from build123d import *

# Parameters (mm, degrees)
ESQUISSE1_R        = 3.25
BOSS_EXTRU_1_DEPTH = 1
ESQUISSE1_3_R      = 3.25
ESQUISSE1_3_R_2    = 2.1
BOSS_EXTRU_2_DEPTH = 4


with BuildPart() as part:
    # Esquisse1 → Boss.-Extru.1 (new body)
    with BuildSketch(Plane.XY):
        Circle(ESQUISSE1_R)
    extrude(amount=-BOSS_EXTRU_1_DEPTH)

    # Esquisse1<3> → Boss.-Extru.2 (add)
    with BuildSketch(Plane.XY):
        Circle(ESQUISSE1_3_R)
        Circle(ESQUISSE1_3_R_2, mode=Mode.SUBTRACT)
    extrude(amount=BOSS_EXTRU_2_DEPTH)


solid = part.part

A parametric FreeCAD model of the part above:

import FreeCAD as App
import Part
import Sketcher
Q = App.Units.Quantity

doc = App.newDocument("Part")
body = doc.addObject("PartDesign::Body", "Body")

sketch1 = doc.addObject("Sketcher::SketchObject", "Sketch")
body.addObject(sketch1)
sketch1.AttachmentSupport = (doc.XY_Plane, [""])
sketch1.MapMode = "FlatFace"
sketch1.addGeometry(Part.Circle(App.Vector(0, 0, 0), App.Vector(0, 0, 1), 3.2), False)
sketch1.addConstraint(Sketcher.Constraint("Coincident", 0, 3, -1, 1))
sketch1.addConstraint(Sketcher.Constraint("Diameter", 0, Q("6.5 mm")))
pad1 = doc.addObject("PartDesign::Pad", "Pad")
body.addObject(pad1)
pad1.Profile = sketch1
pad1.Length = 1
pad1.Reversed = True

sketch2 = doc.addObject("Sketcher::SketchObject", "Sketch001")
body.addObject(sketch2)
sketch2.AttachmentSupport = (doc.XY_Plane, [""])
sketch2.MapMode = "FlatFace"
sketch2.addGeometry(Part.Circle(App.Vector(0, 0, 0), App.Vector(0, 0, 1), 3.2), False)
sketch2.addGeometry(Part.Circle(App.Vector(0, 0, 0), App.Vector(0, 0, 1), 2.1), False)
sketch2.addConstraint(Sketcher.Constraint("Coincident", 0, 3, -1, 1))
sketch2.addConstraint(Sketcher.Constraint("Coincident", 1, 3, -1, 1))
sketch2.addConstraint(Sketcher.Constraint("Diameter", 0, Q("6.5 mm")))
sketch2.addConstraint(Sketcher.Constraint("Diameter", 1, Q("4.2 mm")))
pad2 = doc.addObject("PartDesign::Pad", "Pad001")
body.addObject(pad2)
pad2.Profile = sketch2
pad2.Length = 4

doc.recompute()
